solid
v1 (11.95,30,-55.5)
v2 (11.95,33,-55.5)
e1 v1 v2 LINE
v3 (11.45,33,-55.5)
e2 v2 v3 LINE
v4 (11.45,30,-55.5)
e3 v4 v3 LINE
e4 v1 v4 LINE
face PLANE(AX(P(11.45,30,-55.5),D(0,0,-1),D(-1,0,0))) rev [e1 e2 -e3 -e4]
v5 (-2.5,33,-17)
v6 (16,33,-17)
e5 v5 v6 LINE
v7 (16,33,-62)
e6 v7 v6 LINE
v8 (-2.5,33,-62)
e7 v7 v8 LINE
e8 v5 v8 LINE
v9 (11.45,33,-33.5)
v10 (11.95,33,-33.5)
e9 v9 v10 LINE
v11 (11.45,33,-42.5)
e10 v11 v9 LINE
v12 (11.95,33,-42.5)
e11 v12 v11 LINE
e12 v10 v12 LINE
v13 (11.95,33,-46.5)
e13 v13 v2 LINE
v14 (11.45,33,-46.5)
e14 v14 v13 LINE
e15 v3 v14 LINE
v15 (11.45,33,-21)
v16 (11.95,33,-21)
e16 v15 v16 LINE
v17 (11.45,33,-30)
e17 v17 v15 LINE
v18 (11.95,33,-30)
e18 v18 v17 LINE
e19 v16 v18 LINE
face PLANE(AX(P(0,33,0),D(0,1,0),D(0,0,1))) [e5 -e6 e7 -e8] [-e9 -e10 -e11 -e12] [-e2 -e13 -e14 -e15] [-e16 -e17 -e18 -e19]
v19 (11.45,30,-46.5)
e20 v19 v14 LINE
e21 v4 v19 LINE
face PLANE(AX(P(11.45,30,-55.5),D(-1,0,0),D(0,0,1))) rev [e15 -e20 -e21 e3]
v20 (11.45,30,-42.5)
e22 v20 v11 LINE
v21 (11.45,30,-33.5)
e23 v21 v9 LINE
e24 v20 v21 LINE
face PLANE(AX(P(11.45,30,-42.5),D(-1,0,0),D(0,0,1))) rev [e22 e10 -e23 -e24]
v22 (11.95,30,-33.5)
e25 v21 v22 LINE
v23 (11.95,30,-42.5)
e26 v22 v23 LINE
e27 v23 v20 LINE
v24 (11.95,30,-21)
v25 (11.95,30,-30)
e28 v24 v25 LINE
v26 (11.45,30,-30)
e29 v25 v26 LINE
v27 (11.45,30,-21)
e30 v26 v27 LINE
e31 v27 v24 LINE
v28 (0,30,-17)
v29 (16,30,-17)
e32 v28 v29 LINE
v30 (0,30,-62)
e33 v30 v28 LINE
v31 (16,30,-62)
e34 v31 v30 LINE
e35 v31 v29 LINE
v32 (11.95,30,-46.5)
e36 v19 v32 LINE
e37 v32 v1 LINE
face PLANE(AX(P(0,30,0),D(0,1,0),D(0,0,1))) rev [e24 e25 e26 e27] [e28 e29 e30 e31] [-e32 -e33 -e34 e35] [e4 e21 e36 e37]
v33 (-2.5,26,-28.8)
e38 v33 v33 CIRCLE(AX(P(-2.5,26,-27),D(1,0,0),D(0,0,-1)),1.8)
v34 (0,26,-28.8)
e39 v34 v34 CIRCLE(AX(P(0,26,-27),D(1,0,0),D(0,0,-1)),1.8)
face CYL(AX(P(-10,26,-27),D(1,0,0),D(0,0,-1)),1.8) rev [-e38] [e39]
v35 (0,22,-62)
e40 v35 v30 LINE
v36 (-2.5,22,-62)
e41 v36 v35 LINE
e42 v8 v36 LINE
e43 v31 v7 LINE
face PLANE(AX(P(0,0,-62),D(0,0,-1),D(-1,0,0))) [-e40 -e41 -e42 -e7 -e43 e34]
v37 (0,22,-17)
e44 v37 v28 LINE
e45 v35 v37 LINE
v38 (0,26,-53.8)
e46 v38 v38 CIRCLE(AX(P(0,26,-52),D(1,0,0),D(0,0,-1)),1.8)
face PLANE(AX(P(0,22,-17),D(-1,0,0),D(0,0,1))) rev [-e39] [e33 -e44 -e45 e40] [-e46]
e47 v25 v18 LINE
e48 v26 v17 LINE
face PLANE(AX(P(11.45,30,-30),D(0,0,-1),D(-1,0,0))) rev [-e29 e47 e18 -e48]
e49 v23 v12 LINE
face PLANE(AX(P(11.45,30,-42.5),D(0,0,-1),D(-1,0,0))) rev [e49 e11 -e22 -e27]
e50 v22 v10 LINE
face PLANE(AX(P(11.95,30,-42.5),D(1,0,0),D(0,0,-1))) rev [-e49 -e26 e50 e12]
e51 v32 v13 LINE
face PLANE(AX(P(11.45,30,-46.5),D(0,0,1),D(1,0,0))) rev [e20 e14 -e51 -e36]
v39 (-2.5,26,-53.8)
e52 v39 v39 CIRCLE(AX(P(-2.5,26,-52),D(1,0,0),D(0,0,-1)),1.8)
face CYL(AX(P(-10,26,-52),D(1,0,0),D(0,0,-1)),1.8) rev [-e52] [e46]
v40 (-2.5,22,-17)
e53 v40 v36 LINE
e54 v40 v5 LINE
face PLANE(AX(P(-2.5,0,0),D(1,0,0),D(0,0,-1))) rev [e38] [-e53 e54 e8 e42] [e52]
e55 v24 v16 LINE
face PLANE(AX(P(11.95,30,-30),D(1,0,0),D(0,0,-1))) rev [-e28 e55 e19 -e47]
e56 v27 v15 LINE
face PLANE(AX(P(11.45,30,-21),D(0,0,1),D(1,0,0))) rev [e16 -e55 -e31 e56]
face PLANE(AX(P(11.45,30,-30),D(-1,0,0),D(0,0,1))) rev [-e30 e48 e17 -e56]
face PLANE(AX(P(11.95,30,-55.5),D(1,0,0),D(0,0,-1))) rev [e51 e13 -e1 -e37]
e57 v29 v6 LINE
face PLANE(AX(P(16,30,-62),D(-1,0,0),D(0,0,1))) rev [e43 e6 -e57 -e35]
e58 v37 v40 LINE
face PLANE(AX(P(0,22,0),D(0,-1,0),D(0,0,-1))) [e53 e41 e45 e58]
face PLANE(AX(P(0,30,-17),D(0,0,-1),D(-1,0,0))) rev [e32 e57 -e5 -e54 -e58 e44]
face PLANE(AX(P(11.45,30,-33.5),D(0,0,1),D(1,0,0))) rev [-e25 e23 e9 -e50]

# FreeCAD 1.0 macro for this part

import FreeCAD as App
import Part
import Sketcher

doc = App.newDocument("Part")
body = doc.addObject("PartDesign::Body", "Body")

# Sketch on XZ plane
sketch1 = body.newObject("Sketcher::SketchObject", "Sketch")
sketch1.AttachmentSupport = (doc.getObject("XZ_Plane"), [""])
sketch1.MapMode = "FlatFace"
sketch1.addGeometry([
    Part.LineSegment(App.Vector(0, -2, 0), App.Vector(0, 0, 0)),
    Part.LineSegment(App.Vector(0, 0, 0), App.Vector(70.4, 0, 0)),
    Part.LineSegment(App.Vector(70.4, 0, 0), App.Vector(70.4, -2, 0)),
    Part.LineSegment(App.Vector(70.4, -2, 0), App.Vector(0, -2, 0)),
], False)
sketch1.addConstraint([
    Sketcher.Constraint("Coincident", 0, 2, 1, 1),
    Sketcher.Constraint("Coincident", 1, 2, 2, 1),
    Sketcher.Constraint("Coincident", 2, 2, 3, 1),
    Sketcher.Constraint("Coincident", 3, 2, 0, 1),
    Sketcher.Constraint("Vertical", 0),
    Sketcher.Constraint("Horizontal", 1),
    Sketcher.Constraint("Vertical", 2),
    Sketcher.Constraint("Horizontal", 3),
    Sketcher.Constraint("Coincident", 0, 2, -1, 1),
    Sketcher.Constraint("DistanceY", 0, 1, 0, 2, 2.0),
    Sketcher.Constraint("DistanceX", 1, 1, 1, 2, 70.4),
])
pad1 = body.newObject("PartDesign::Pad", "Pad")
pad1.Profile = sketch1
pad1.Length = 10
pad1.Reversed = True

# Sketch on XZ plane
sketch2 = body.newObject("Sketcher::SketchObject", "Sketch001")
sketch2.AttachmentSupport = (doc.getObject("XZ_Plane"), [""])
sketch2.MapMode = "FlatFace"
sketch2.AttachmentOffset = App.Placement(App.Vector(0, 0, -10), App.Rotation())
sketch2.addGeometry([
    Part.LineSegment(App.Vector(0, -57, 0), App.Vector(0, -2, 0)),  # 0
    Part.LineSegment(App.Vector(0, -2, 0), App.Vector(2, -2, 0)),  # 1
    Part.LineSegment(App.Vector(2, -2, 0), App.Vector(2, -57, 0)),  # 2
    Part.LineSegment(App.Vector(2, -57, 0), App.Vector(0, -57, 0)),  # 3
    Part.LineSegment(App.Vector(68.4, -57, 0), App.Vector(68.4, -2, 0)),  # 4
    Part.LineSegment(App.Vector(68.4, -2, 0), App.Vector(70.4, -2, 0)),  # 5
    Part.LineSegment(App.Vector(70.4, -2, 0), App.Vector(70.4, -57, 0)),  # 6
    Part.LineSegment(App.Vector(70.4, -57, 0), App.Vector(68.4, -57, 0)),  # 7
], False)
sketch2.addConstraint([
    Sketcher.Constraint("Coincident", 0, 2, 1, 1),
    Sketcher.Constraint("Coincident", 1, 2, 2, 1),
    Sketcher.Constraint("Coincident", 2, 2, 3, 1),
    Sketcher.Constraint("Coincident", 3, 2, 0, 1),
    Sketcher.Constraint("Coincident", 4, 2, 5, 1),
    Sketcher.Constraint("Coincident", 5, 2, 6, 1),
    Sketcher.Constraint("Coincident", 6, 2, 7, 1),
    Sketcher.Constraint("Coincident", 7, 2, 4, 1),
    Sketcher.Constraint("Vertical", 0),
    Sketcher.Constraint("Horizontal", 1),
    Sketcher.Constraint("Vertical", 2),
    Sketcher.Constraint("Horizontal", 3),
    Sketcher.Constraint("Vertical", 4),
    Sketcher.Constraint("Horizontal", 5),
    Sketcher.Constraint("Vertical", 6),
    Sketcher.Constraint("Horizontal", 7),
    Sketcher.Constraint("PointOnObject", 0, 2, -2),
    Sketcher.Constraint("Horizontal", 1, 2, 4, 2),
    Sketcher.Constraint("Horizontal", 3, 2, 6, 2),
    Sketcher.Constraint("Equal", 3, 5),
    Sketcher.Constraint("DistanceX", 1, 1, 1, 2, 2.0),
    Sketcher.Constraint("DistanceY", 0, 1, 0, 2, 55.0),
    Sketcher.Constraint("DistanceY", 0, 2, -1, 1, 2.0),
    Sketcher.Constraint("DistanceX", -1, 1, 4, 2, 68.4),
])
pad2 = body.newObject("PartDesign::Pad", "Pad001")
pad2.Profile = sketch2
pad2.Length = 10

# Sketch on XY plane
sketch3 = body.newObject("Sketcher::SketchObject", "Sketch002")
sketch3.AttachmentSupport = (doc.getObject("XY_Plane"), [""])
sketch3.MapMode = "FlatFace"
sketch3.addGeometry([
    Part.LineSegment(App.Vector(25.7, 13, 0), App.Vector(25.7, 10, 0)),
    Part.LineSegment(App.Vector(25.7, 10, 0), App.Vector(44.7, 10, 0)),
    Part.LineSegment(App.Vector(44.7, 10, 0), App.Vector(44.7, 13, 0)),
    Part.LineSegment(App.Vector(44.7, 13, 0), App.Vector(25.7, 13, 0)),
], False)
sketch3.addConstraint([
    Sketcher.Constraint("Coincident", 0, 2, 1, 1),
    Sketcher.Constraint("Coincident", 1, 2, 2, 1),
    Sketcher.Constraint("Coincident", 2, 2, 3, 1),
    Sketcher.Constraint("Coincident", 3, 2, 0, 1),
    Sketcher.Constraint("Vertical", 0),
    Sketcher.Constraint("Horizontal", 1),
    Sketcher.Constraint("Vertical", 2),
    Sketcher.Constraint("Horizontal", 3),
    Sketcher.Constraint("DistanceX", 1, 1, 1, 2, 19.0),
    Sketcher.Constraint("DistanceY", 0, 2, 0, 1, 3.0),
    Sketcher.Constraint("DistanceY", -1, 1, 0, 2, 10.0),
    Sketcher.Constraint("DistanceX", -1, 1, 0, 2, 25.7),
])
pad3 = body.newObject("PartDesign::Pad", "Pad002")
pad3.Profile = sketch3
pad3.Length = 2
pad3.Reversed = True

# Sketch on XY plane
sketch4 = body.newObject("Sketcher::SketchObject", "Sketch003")
sketch4.AttachmentSupport = (doc.getObject("XY_Plane"), [""])
sketch4.MapMode = "FlatFace"
sketch4.addGeometry([
    Part.LineSegment(App.Vector(28, 10, 0), App.Vector(28, 0, 0)),
    Part.LineSegment(App.Vector(28, 0, 0), App.Vector(43, 0, 0)),
    Part.LineSegment(App.Vector(43, 0, 0), App.Vector(43, 10, 0)),
    Part.LineSegment(App.Vector(43, 10, 0), App.Vector(28, 10, 0)),
], False)
sketch4.addConstraint([
    Sketcher.Constraint("Coincident", 0, 2, 1, 1),
    Sketcher.Constraint("Coincident", 1, 2, 2, 1),
    Sketcher.Constraint("Coincident", 2, 2, 3, 1),
    Sketcher.Constraint("Coincident", 3, 2, 0, 1),
    Sketcher.Constraint("Vertical", 0),
    Sketcher.Constraint("Horizontal", 1),
    Sketcher.Constraint("Vertical", 2),
    Sketcher.Constraint("Horizontal", 3),
    Sketcher.Constraint("PointOnObject", 0, 2, -1),
    Sketcher.Constraint("DistanceX", 1, 1, 1, 2, 15.0),
    Sketcher.Constraint("DistanceY", 0, 2, 0, 1, 10.0),
    Sketcher.Constraint("DistanceX", -1, 1, 0, 2, 27.7),
])
pocket1 = body.newObject("PartDesign::Pocket", "Pocket")
pocket1.Profile = sketch4
pocket1.Length = 2

# Sketch on YZ plane
sketch5 = body.newObject("Sketcher::SketchObject", "Sketch004")
sketch5.AttachmentSupport = (doc.getObject("YZ_Plane"), [""])
sketch5.MapMode = "FlatFace"
sketch5.AttachmentOffset = App.Placement(App.Vector(0, 0, 25.7), App.Rotation())
sketch5.addGeometry([
    Part.LineSegment(App.Vector(13, -2, 0), App.Vector(10, -2, 0)),
    Part.LineSegment(App.Vector(10, -2, 0), App.Vector(10, 0, 0)),
    Part.LineSegment(App.Vector(10, 0, 0), App.Vector(13, 0, 0)),
    Part.LineSegment(App.Vector(13, 0, 0), App.Vector(13, -2, 0)),
], False)
sketch5.addConstraint([
    Sketcher.Constraint("Coincident", 0, 2, 1, 1),
    Sketcher.Constraint("Coincident", 1, 2, 2, 1),
    Sketcher.Constraint("Coincident", 2, 2, 3, 1),
    Sketcher.Constraint("Coincident", 3, 2, 0, 1),
    Sketcher.Constraint("Horizontal", 0),
    Sketcher.Constraint("Vertical", 1),
    Sketcher.Constraint("Horizontal", 2),
    Sketcher.Constraint("Vertical", 3),
    Sketcher.Constraint("PointOnObject", 1, 2, -1),
    Sketcher.Constraint("DistanceX", 0, 2, 0, 1, 3.0),
    Sketcher.Constraint("DistanceY", 1, 1, 1, 2, 2.0),
    Sketcher.Constraint("DistanceX", -1, 1, 0, 2, 10.0),
])
pad4 = body.newObject("PartDesign::Pad", "Pad003")
pad4.Profile = sketch5
pad4.Length = 1
pad4.Reversed = True

# Sketch on YZ plane
sketch6 = body.newObject("Sketcher::SketchObject", "Sketch005")
sketch6.AttachmentSupport = (doc.getObject("YZ_Plane"), [""])
sketch6.MapMode = "FlatFace"
sketch6.AttachmentOffset = App.Placement(App.Vector(0, 0, 44.7), App.Rotation())
sketch6.addGeometry([
    Part.LineSegment(App.Vector(13, 0, 0), App.Vector(10, 0, 0)),
    Part.LineSegment(App.Vector(10, 0, 0), App.Vector(10, -2, 0)),
    Part.LineSegment(App.Vector(10, -2, 0), App.Vector(13, -2, 0)),
    Part.LineSegment(App.Vector(13, -2, 0), App.Vector(13, 0, 0)),
], False)
sketch6.addConstraint([
    Sketcher.Constraint("Coincident", 0, 2, 1, 1),
    Sketcher.Constraint("Coincident", 1, 2, 2, 1),
    Sketcher.Constraint("Coincident", 2, 2, 3, 1),
    Sketcher.Constraint("Coincident", 3, 2, 0, 1),
    Sketcher.Constraint("Horizontal", 0),
    Sketcher.Constraint("Vertical", 1),
    Sketcher.Constraint("Horizontal", 2),
    Sketcher.Constraint("Vertical", 3),
    Sketcher.Constraint("PointOnObject", 0, 2, -1),
    Sketcher.Constraint("DistanceX", 0, 2, 0, 1, 3.0),
    Sketcher.Constraint("DistanceY", 1, 2, 1, 1, 2.0),
    Sketcher.Constraint("DistanceX", -1, 1, 0, 2, 10.0),
])
pad5 = body.newObject("PartDesign::Pad", "Pad004")
pad5.Profile = sketch6
pad5.Length = 1

# Sketch on YZ plane
sketch7 = body.newObject("Sketcher::SketchObject", "Sketch006")
sketch7.AttachmentSupport = (doc.getObject("YZ_Plane"), [""])
sketch7.MapMode = "FlatFace"
sketch7.addGeometry([
    Part.LineSegment(App.Vector(2, -57, 0), App.Vector(0, -57, 0)),
    Part.LineSegment(App.Vector(0, -57, 0), App.Vector(0, 0, 0)),
    Part.LineSegment(App.Vector(0, 0, 0), App.Vector(2, 0, 0)),
    Part.LineSegment(App.Vector(2, 0, 0), App.Vector(2, -57, 0)),
], False)
sketch7.addConstraint([
    Sketcher.Constraint("Coincident", 0, 2, 1, 1),
    Sketcher.Constraint("Coincident", 1, 2, 2, 1),
    Sketcher.Constraint("Coincident", 2, 2, 3, 1),
    Sketcher.Constraint("Coincident", 3, 2, 0, 1),
    Sketcher.Constraint("Horizontal", 0),
    Sketcher.Constraint("Vertical", 1),
    Sketcher.Constraint("Horizontal", 2),
    Sketcher.Constraint("Vertical", 3),
    Sketcher.Constraint("Coincident", 1, 2, -1, 1),
    Sketcher.Constraint("DistanceX", 0, 2, 0, 1, 2.0),
    Sketcher.Constraint("DistanceY", 1, 1, 1, 2, 57.0),
])
pad6 = body.newObject("PartDesign::Pad", "Pad005")
pad6.Profile = sketch7
pad6.Length = 6.6
pad6.Reversed = True

# Sketch on YZ plane
sketch8 = body.newObject("Sketcher::SketchObject", "Sketch007")
sketch8.AttachmentSupport = (doc.getObject("YZ_Plane"), [""])
sketch8.MapMode = "FlatFace"
sketch8.AttachmentOffset = App.Placement(App.Vector(0, 0, 70.4), App.Rotation())
sketch8.addGeometry([
    Part.LineSegment(App.Vector(2, 0, 0), App.Vector(0, 0, 0)),
    Part.LineSegment(App.Vector(0, 0, 0), App.Vector(0, -57, 0)),
    Part.LineSegment(App.Vector(0, -57, 0), App.Vector(2, -57, 0)),
    Part.LineSegment(App.Vector(2, -57, 0), App.Vector(2, 0, 0)),
], False)
sketch8.addConstraint([
    Sketcher.Constraint("Coincident", 0, 2, 1, 1),
    Sketcher.Constraint("Coincident", 1, 2, 2, 1),
    Sketcher.Constraint("Coincident", 2, 2, 3, 1),
    Sketcher.Constraint("Coincident", 3, 2, 0, 1),
    Sketcher.Constraint("Horizontal", 0),
    Sketcher.Constraint("Vertical", 1),
    Sketcher.Constraint("Horizontal", 2),
    Sketcher.Constraint("Vertical", 3),
    Sketcher.Constraint("Coincident", 0, 2, -1, 1),
    Sketcher.Constraint("DistanceX", 0, 2, 0, 1, 2.0),
    Sketcher.Constraint("DistanceY", 1, 2, 1, 1, 57.0),
])
pad7 = body.newObject("PartDesign::Pad", "Pad006")
pad7.Profile = sketch8
pad7.Length = 6.6

# Sketch on XY plane
sketch9 = body.newObject("Sketcher::SketchObject", "Sketch008")
sketch9.AttachmentSupport = (doc.getObject("XY_Plane"), [""])
sketch9.MapMode = "FlatFace"
sketch9.AttachmentOffset = App.Placement(App.Vector(0, 0, -57), App.Rotation())
sketch9.addGeometry([
    Part.LineSegment(App.Vector(2, 10, 0), App.Vector(2, 0, 0)),  # 0
    Part.LineSegment(App.Vector(2, 0, 0), App.Vector(-6.6, 0, 0)),  # 1
    Part.LineSegment(App.Vector(-6.6, 0, 0), App.Vector(-6.6, 2, 0)),  # 2
    Part.LineSegment(App.Vector(-6.6, 2, 0), App.Vector(0, 2, 0)),  # 3
    Part.LineSegment(App.Vector(0, 2, 0), App.Vector(0, 10, 0)),  # 4
    Part.LineSegment(App.Vector(0, 10, 0), App.Vector(2, 10, 0)),  # 5
    Part.LineSegment(App.Vector(77, 0, 0), App.Vector(68.4, 0, 0)),  # 6
    Part.LineSegment(App.Vector(68.4, 0, 0), App.Vector(68.4, 10, 0)),  # 7
    Part.LineSegment(App.Vector(68.4, 10, 0), App.Vector(70.4, 10, 0)),  # 8
    Part.LineSegment(App.Vector(70.4, 10, 0), App.Vector(70.4, 2, 0)),  # 9
    Part.LineSegment(App.Vector(70.4, 2, 0), App.Vector(77, 2, 0)),  # 10
    Part.LineSegment(App.Vector(77, 2, 0), App.Vector(77, 0, 0)),  # 11
], False)
sketch9.addConstraint([
    Sketcher.Constraint("Coincident", 0, 2, 1, 1),
    Sketcher.Constraint("Coincident", 1, 2, 2, 1),
    Sketcher.Constraint("Coincident", 2, 2, 3, 1),
    Sketcher.Constraint("Coincident", 3, 2, 4, 1),
    Sketcher.Constraint("Coincident", 4, 2, 5, 1),
    Sketcher.Constraint("Coincident", 5, 2, 0, 1),
    Sketcher.Constraint("Coincident", 6, 2, 7, 1),
    Sketcher.Constraint("Coincident", 7, 2, 8, 1),
    Sketcher.Constraint("Coincident", 8, 2, 9, 1),
    Sketcher.Constraint("Coincident", 9, 2, 10, 1),
    Sketcher.Constraint("Coincident", 10, 2, 11, 1),
    Sketcher.Constraint("Coincident", 11, 2, 6, 1),
    Sketcher.Constraint("Vertical", 0),
    Sketcher.Constraint("Horizontal", 1),
    Sketcher.Constraint("Vertical", 2),
    Sketcher.Constraint("Horizontal", 3),
    Sketcher.Constraint("Vertical", 4),
    Sketcher.Constraint("Horizontal", 5),
    Sketcher.Constraint("Horizontal", 6),
    Sketcher.Constraint("Vertical", 7),
    Sketcher.Constraint("Horizontal", 8),
    Sketcher.Constraint("Vertical", 9),
    Sketcher.Constraint("Horizontal", 10),
    Sketcher.Constraint("Vertical", 11),
    Sketcher.Constraint("PointOnObject", 0, 2, -1),
    Sketcher.Constraint("PointOnObject", 3, 2, -2),
    Sketcher.Constraint("PointOnObject", 6, 2, -1),
    Sketcher.Constraint("Horizontal", 5, 2, 7, 2),
    Sketcher.Constraint("Horizontal", 3, 2, 9, 2),
    Sketcher.Constraint("Equal", 1, 6),
    Sketcher.Constraint("Equal", 5, 8),
    Sketcher.Constraint("Equal", 8, 2),
    Sketcher.Constraint("DistanceX", 5, 1, 5, 2, 2.0),
    Sketcher.Constraint("DistanceY", 0, 2, 0, 1, 10.0),
    Sketcher.Constraint("DistanceX", 1, 2, 1, 1, 8.6),
    Sketcher.Constraint("DistanceX", -1, 1, 10, 2, 77.0),
])
pad8 = body.newObject("PartDesign::Pad", "Pad007")
pad8.Profile = sketch9
pad8.Length = 5
pad8.Reversed = True

# Sketch on XZ plane
sketch10 = body.newObject("Sketcher::SketchObject", "Sketch009")
sketch10.AttachmentSupport = (doc.getObject("XZ_Plane"), [""])
sketch10.MapMode = "FlatFace"
sketch10.AttachmentOffset = App.Placement(App.Vector(0, 0, -10), App.Rotation())
sketch10.addGeometry([
    Part.LineSegment(App.Vector(0, -62, 0), App.Vector(0, -17, 0)),  # 0
    Part.LineSegment(App.Vector(0, -17, 0), App.Vector(2, -17, 0)),  # 1
    Part.LineSegment(App.Vector(2, -17, 0), App.Vector(2, -62, 0)),  # 2
    Part.LineSegment(App.Vector(2, -62, 0), App.Vector(0, -62, 0)),  # 3
    Part.LineSegment(App.Vector(68.4, -27, 0), App.Vector(70.4, -27, 0)),  # 4
    Part.LineSegment(App.Vector(70.4, -27, 0), App.Vector(70.4, -62, 0)),  # 5
    Part.LineSegment(App.Vector(70.4, -62, 0), App.Vector(68.4, -62, 0)),  # 6
    Part.LineSegment(App.Vector(68.4, -62, 0), App.Vector(68.4, -27, 0)),  # 7
], False)
sketch10.addConstraint([
    Sketcher.Constraint("Coincident", 0, 2, 1, 1),
    Sketcher.Constraint("Coincident", 1, 2, 2, 1),
    Sketcher.Constraint("Coincident", 2, 2, 3, 1),
    Sketcher.Constraint("Coincident", 3, 2, 0, 1),
    Sketcher.Constraint("Coincident", 4, 2, 5, 1),
    Sketcher.Constraint("Coincident", 5, 2, 6, 1),
    Sketcher.Constraint("Coincident", 6, 2, 7, 1),
    Sketcher.Constraint("Coincident", 7, 2, 4, 1),
    Sketcher.Constraint("Vertical", 0),
    Sketcher.Constraint("Horizontal", 1),
    Sketcher.Constraint("Vertical", 2),
    Sketcher.Constraint("Horizontal", 3),
    Sketcher.Constraint("Horizontal", 4),
    Sketcher.Constraint("Vertical", 5),
    Sketcher.Constraint("Horizontal", 6),
    Sketcher.Constraint("Vertical", 7),
    Sketcher.Constraint("PointOnObject", 0, 2, -2),
    Sketcher.Constraint("Horizontal", 3, 2, 5, 2),
    Sketcher.Constraint("Equal", 3, 4),
    Sketcher.Constraint("DistanceX", 1, 1, 1, 2, 2.0),
    Sketcher.Constraint("DistanceY", 0, 1, 0, 2, 45.0),
    Sketcher.Constraint("DistanceY", 5, 2, 5, 1, 35.0),
    Sketcher.Constraint("DistanceY", 0, 2, -1, 1, 17.0),
    Sketcher.Constraint("DistanceX", -1, 1, 4, 2, 70.4),
])
pad9 = body.newObject("PartDesign::Pad", "Pad008")
pad9.Profile = sketch10
pad9.Length = 20
pad9.Reversed = True

# Sketch on XZ plane
sketch11 = body.newObject("Sketcher::SketchObject", "Sketch010")
sketch11.AttachmentSupport = (doc.getObject("XZ_Plane"), [""])
sketch11.MapMode = "FlatFace"
sketch11.AttachmentOffset = App.Placement(App.Vector(0, 0, -30), App.Rotation())
sketch11.addGeometry([
    Part.LineSegment(App.Vector(0, -17, 0), App.Vector(35, -17, 0)),  # 0
    Part.LineSegment(App.Vector(35, -17, 0), App.Vector(35, -27, 0)),  # 1
    Part.LineSegment(App.Vector(35, -27, 0), App.Vector(70, -27, 0)),  # 2
    Part.LineSegment(App.Vector(70, -27, 0), App.Vector(70, -62, 0)),  # 3
    Part.LineSegment(App.Vector(70, -62, 0), App.Vector(0, -62, 0)),  # 4
    Part.LineSegment(App.Vector(0, -62, 0), App.Vector(0, -17, 0)),  # 5
], False)
sketch11.addConstraint([
    Sketcher.Constraint("Coincident", 0, 2, 1, 1),
    Sketcher.Constraint("Coincident", 1, 2, 2, 1),
    Sketcher.Constraint("Coincident", 2, 2, 3, 1),
    Sketcher.Constraint("Coincident", 3, 2, 4, 1),
    Sketcher.Constraint("Coincident", 4, 2, 5, 1),
    Sketcher.Constraint("Coincident", 5, 2, 0, 1),
    Sketcher.Constraint("Horizontal", 0),
    Sketcher.Constraint("Vertical", 1),
    Sketcher.Constraint("Horizontal", 2),
    Sketcher.Constraint("Vertical", 3),
    Sketcher.Constraint("Horizontal", 4),
    Sketcher.Constraint("Vertical", 5),
    Sketcher.Constraint("PointOnObject", 4, 2, -2),
    Sketcher.Constraint("Equal", 0, 2),
    Sketcher.Constraint("DistanceY", 1, 2, 1, 1, 10.0),
    Sketcher.Constraint("DistanceY", 3, 2, 3, 1, 35.0),
    Sketcher.Constraint("DistanceX", 0, 1, 0, 2, 35.2),
    Sketcher.Constraint("DistanceY", 0, 2, -1, 1, 17.0),
])
pad10 = body.newObject("PartDesign::Pad", "Pad009")
pad10.Profile = sketch11
pad10.Length = 3
pad10.Reversed = True

# Sketch on XZ plane
sketch12 = body.newObject("Sketcher::SketchObject", "Sketch011")
sketch12.AttachmentSupport = (doc.getObject("XZ_Plane"), [""])
sketch12.MapMode = "FlatFace"
sketch12.AttachmentOffset = App.Placement(App.Vector(0, 0, -33), App.Rotation())
sketch12.addGeometry([
    Part.LineSegment(App.Vector(11.4, -55.5, 0), App.Vector(11.4, -46.5, 0)),  # 0
    Part.LineSegment(App.Vector(11.4, -46.5, 0), App.Vector(11.9, -46.5, 0)),  # 1
    Part.LineSegment(App.Vector(11.9, -46.5, 0), App.Vector(11.9, -55.5, 0)),  # 2
    Part.LineSegment(App.Vector(11.9, -55.5, 0), App.Vector(11.4, -55.5, 0)),  # 3
    Part.LineSegment(App.Vector(11.4, -42.5, 0), App.Vector(11.4, -33.5, 0)),  # 4
    Part.LineSegment(App.Vector(11.4, -33.5, 0), App.Vector(11.9, -33.5, 0)),  # 5
    Part.LineSegment(App.Vector(11.9, -33.5, 0), App.Vector(11.9, -42.5, 0)),  # 6
    Part.LineSegment(App.Vector(11.9, -42.5, 0), App.Vector(11.4, -42.5, 0)),  # 7
    Part.LineSegment(App.Vector(11.4, -30, 0), App.Vector(11.4, -21, 0)),  # 8
    Part.LineSegment(App.Vector(11.4, -21, 0), App.Vector(11.9, -21, 0)),  # 9
    Part.LineSegment(App.Vector(11.9, -21, 0), App.Vector(11.9, -30, 0)),  # 10
    Part.LineSegment(App.Vector(11.9, -30, 0), App.Vector(11.4, -30, 0)),  # 11
    Part.LineSegment(App.Vector(58, -55.5, 0), App.Vector(58, -46.5, 0)),  # 12
    Part.LineSegment(App.Vector(58, -46.5, 0), App.Vector(58.5, -46.5, 0)),  # 13
    Part.LineSegment(App.Vector(58.5, -46.5, 0), App.Vector(58.5, -55.5, 0)),  # 14
    Part.LineSegment(App.Vector(58.5, -55.5, 0), App.Vector(58, -55.5, 0)),  # 15
    Part.LineSegment(App.Vector(58, -42.5, 0), App.Vector(58, -33.5, 0)),  # 16
    Part.LineSegment(App.Vector(58, -33.5, 0), App.Vector(58.5, -33.5, 0)),  # 17
    Part.LineSegment(App.Vector(58.5, -33.5, 0), App.Vector(58.5, -42.5, 0)),  # 18
    Part.LineSegment(App.Vector(58.5, -42.5, 0), App.Vector(58, -42.5, 0)),  # 19
], False)
sketch12.addConstraint([
    Sketcher.Constraint("Coincident", 0, 2, 1, 1),
    Sketcher.Constraint("Coincident", 1, 2, 2, 1),
    Sketcher.Constraint("Coincident", 2, 2, 3, 1),
    Sketcher.Constraint("Coincident", 3, 2, 0, 1),
    Sketcher.Constraint("Coincident", 4, 2, 5, 1),
    Sketcher.Constraint("Coincident", 5, 2, 6, 1),
    Sketcher.Constraint("Coincident", 6, 2, 7, 1),
    Sketcher.Constraint("Coincident", 7, 2, 4, 1),
    Sketcher.Constraint("Coincident", 8, 2, 9, 1),
    Sketcher.Constraint("Coincident", 9, 2, 10, 1),
    Sketcher.Constraint("Coincident", 10, 2, 11, 1),
    Sketcher.Constraint("Coincident", 11, 2, 8, 1),
    Sketcher.Constraint("Coincident", 12, 2, 13, 1),
    Sketcher.Constraint("Coincident", 13, 2, 14, 1),
    Sketcher.Constraint("Coincident", 14, 2, 15, 1),
    Sketcher.Constraint("Coincident", 15, 2, 12, 1),
    Sketcher.Constraint("Coincident", 16, 2, 17, 1),
    Sketcher.Constraint("Coincident", 17, 2, 18, 1),
    Sketcher.Constraint("Coincident", 18, 2, 19, 1),
    Sketcher.Constraint("Coincident", 19, 2, 16, 1),
    Sketcher.Constraint("Vertical", 0),
    Sketcher.Constraint("Horizontal", 1),
    Sketcher.Constraint("Vertical", 2),
    Sketcher.Constraint("Horizontal", 3),
    Sketcher.Constraint("Vertical", 4),
    Sketcher.Constraint("Horizontal", 5),
    Sketcher.Constraint("Vertical", 6),
    Sketcher.Constraint("Horizontal", 7),
    Sketcher.Constraint("Vertical", 8),
    Sketcher.Constraint("Horizontal", 9),
    Sketcher.Constraint("Vertical", 10),
    Sketcher.Constraint("Horizontal", 11),
    Sketcher.Constraint("Vertical", 12),
    Sketcher.Constraint("Horizontal", 13),
    Sketcher.Constraint("Vertical", 14),
    Sketcher.Constraint("Horizontal", 15),
    Sketcher.Constraint("Vertical", 16),
    Sketcher.Constraint("Horizontal", 17),
    Sketcher.Constraint("Vertical", 18),
    Sketcher.Constraint("Horizontal", 19),
    Sketcher.Constraint("Horizontal", 1, 2, 12, 2),
    Sketcher.Constraint("Horizontal", 3, 2, 14, 2),
    Sketcher.Constraint("Horizontal", 5, 2, 16, 2),
    Sketcher.Constraint("Horizontal", 7, 2, 18, 2),
    Sketcher.Constraint("Vertical", 3, 2, 4, 2),
    Sketcher.Constraint("Vertical", 2, 2, 5, 2),
    Sketcher.Constraint("Vertical", 7, 2, 8, 2),
    Sketcher.Constraint("Vertical", 6, 2, 9, 2),
    Sketcher.Constraint("Vertical", 15, 2, 16, 2),
    Sketcher.Constraint("Vertical", 14, 2, 17, 2),
    Sketcher.Constraint("Equal", 11, 13),
    Sketcher.Constraint("Equal", 2, 4),
    Sketcher.Constraint("Equal", 6, 8),
    Sketcher.Constraint("DistanceY", 0, 1, 0, 2, 9.0),
    Sketcher.Constraint("DistanceX", 1, 1, 1, 2, 0.5),
    Sketcher.Constraint("DistanceY", 8, 2, -1, 1, 21.0),
    Sketcher.Constraint("DistanceY", 0, 2, 4, 2, 13.0),
    Sketcher.Constraint("DistanceX", 1, 2, 12, 2, 46.0),
    Sketcher.Constraint("DistanceY", 0, 2, -1, 1, 46.5),
    Sketcher.Constraint("DistanceX", -1, 1, 0, 2, 11.45),
])
pocket2 = body.newObject("PartDesign::Pocket", "Pocket001")
pocket2.Profile = sketch12
pocket2.Length = 3
pocket2.Reversed = True

# Sketch on XZ plane
sketch13 = body.newObject("Sketcher::SketchObject", "Sketch012")
sketch13.AttachmentSupport = (doc.getObject("XZ_Plane"), [""])
sketch13.MapMode = "FlatFace"
sketch13.AttachmentOffset = App.Placement(App.Vector(0, 0, -33), App.Rotation())
sketch13.addGeometry([
    Part.LineSegment(App.Vector(16, -62, 0), App.Vector(16, -17, 0)),
    Part.LineSegment(App.Vector(16, -17, 0), App.Vector(54, -17, 0)),
    Part.LineSegment(App.Vector(54, -17, 0), App.Vector(54, -62, 0)),
    Part.LineSegment(App.Vector(54, -62, 0), App.Vector(16, -62, 0)),
], False)
sketch13.addConstraint([
    Sketcher.Constraint("Coincident", 0, 2, 1, 1),
    Sketcher.Constraint("Coincident", 1, 2, 2, 1),
    Sketcher.Constraint("Coincident", 2, 2, 3, 1),
    Sketcher.Constraint("Coincident", 3, 2, 0, 1),
    Sketcher.Constraint("Vertical", 0),
    Sketcher.Constraint("Horizontal", 1),
    Sketcher.Constraint("Vertical", 2),
    Sketcher.Constraint("Horizontal", 3),
    Sketcher.Constraint("DistanceY", 0, 1, 0, 2, 45.0),
    Sketcher.Constraint("DistanceX", 1, 1, 1, 2, 38.4),
    Sketcher.Constraint("DistanceX", -1, 1, 0, 2, 16.0),
    Sketcher.Constraint("DistanceY", 0, 2, -1, 1, 17.0),
])
pocket3 = body.newObject("PartDesign::Pocket", "Pocket002")
pocket3.Profile = sketch13
pocket3.Length = 3
pocket3.Reversed = True

# Sketch on XY plane
sketch14 = body.newObject("Sketcher::SketchObject", "Sketch013")
sketch14.AttachmentSupport = (doc.getObject("XY_Plane"), [""])
sketch14.MapMode = "FlatFace"
sketch14.addGeometry([
    Part.LineSegment(App.Vector(-6.6, 0, 0), App.Vector(27.7, 0, 0)),  # 0
    Part.LineSegment(App.Vector(27.7, 0, 0), App.Vector(27.7, 10, 0)),  # 1
    Part.LineSegment(App.Vector(27.7, 10, 0), App.Vector(42.7, 10, 0)),  # 2
    Part.LineSegment(App.Vector(42.7, 10, 0), App.Vector(42.7, 0, 0)),  # 3
    Part.LineSegment(App.Vector(42.7, 0, 0), App.Vector(77, 0, 0)),  # 4
    Part.LineSegment(App.Vector(77, 0, 0), App.Vector(77, 2, 0)),  # 5
    Part.LineSegment(App.Vector(77, 2, 0), App.Vector(70.4, 2, 0)),  # 6
    Part.LineSegment(App.Vector(70.4, 2, 0), App.Vector(70.4, 10, 0)),  # 7
    Part.LineSegment(App.Vector(70.4, 10, 0), App.Vector(45.7, 10, 0)),  # 8
    Part.LineSegment(App.Vector(45.7, 10, 0), App.Vector(45.7, 13, 0)),  # 9
    Part.LineSegment(App.Vector(45.7, 13, 0), App.Vector(24.7, 13, 0)),  # 10
    Part.LineSegment(App.Vector(24.7, 13, 0), App.Vector(24.7, 10, 0)),  # 11
    Part.LineSegment(App.Vector(24.7, 10, 0), App.Vector(0, 10, 0)),  # 12
    Part.LineSegment(App.Vector(0, 10, 0), App.Vector(0, 2, 0)),  # 13
    Part.LineSegment(App.Vector(0, 2, 0), App.Vector(-6.6, 2, 0)),  # 14
    Part.LineSegment(App.Vector(-6.6, 2, 0), App.Vector(-6.6, 0, 0)),  # 15
], False)
sketch14.addConstraint([
    Sketcher.Constraint("Coincident", 0, 2, 1, 1),
    Sketcher.Constraint("Coincident", 1, 2, 2, 1),
    Sketcher.Constraint("Coincident", 2, 2, 3, 1),
    Sketcher.Constraint("Coincident", 3, 2, 4, 1),
    Sketcher.Constraint("Coincident", 4, 2, 5, 1),
    Sketcher.Constraint("Coincident", 5, 2, 6, 1),
    Sketcher.Constraint("Coincident", 6, 2, 7, 1),
    Sketcher.Constraint("Coincident", 7, 2, 8, 1),
    Sketcher.Constraint("Coincident", 8, 2, 9, 1),
    Sketcher.Constraint("Coincident", 9, 2, 10, 1),
    Sketcher.Constraint("Coincident", 10, 2, 11, 1),
    Sketcher.Constraint("Coincident", 11, 2, 12, 1),
    Sketcher.Constraint("Coincident", 12, 2, 13, 1),
    Sketcher.Constraint("Coincident", 13, 2, 14, 1),
    Sketcher.Constraint("Coincident", 14, 2, 15, 1),
    Sketcher.Constraint("Coincident", 15, 2, 0, 1),
    Sketcher.Constraint("Horizontal", 0),
    Sketcher.Constraint("Vertical", 1),
    Sketcher.Constraint("Horizontal", 2),
    Sketcher.Constraint("Vertical", 3),
    Sketcher.Constraint("Horizontal", 4),
    Sketcher.Constraint("Vertical", 5),
    Sketcher.Constraint("Horizontal", 6),
    Sketcher.Constraint("Vertical", 7),
    Sketcher.Constraint("Horizontal", 8),
    Sketcher.Constraint("Vertical", 9),
    Sketcher.Constraint("Horizontal", 10),
    Sketcher.Constraint("Vertical", 11),
    Sketcher.Constraint("Horizontal", 12),
    Sketcher.Constraint("Vertical", 13),
    Sketcher.Constraint("Horizontal", 14),
    Sketcher.Constraint("Vertical", 15),
    Sketcher.Constraint("PointOnObject", 0, 2, -1),
    Sketcher.Constraint("PointOnObject", 3, 2, -1),
    Sketcher.Constraint("PointOnObject", 12, 2, -2),
    Sketcher.Constraint("Horizontal", 2, 2, 7, 2),
    Sketcher.Constraint("Horizontal", 8, 2, 11, 2),
    Sketcher.Constraint("Horizontal", 6, 2, 13, 2),
    Sketcher.Constraint("Equal", 0, 4),
    Sketcher.Constraint("Equal", 8, 12),
    Sketcher.Constraint("Equal", 6, 14),
    Sketcher.Constraint("DistanceX", 2, 1, 2, 2, 15.0),
    Sketcher.Constraint("DistanceX", 10, 2, 10, 1, 21.0),
    Sketcher.Constraint("DistanceY", 1, 1, 1, 2, 10.0),
    Sketcher.Constraint("DistanceY", 5, 1, 5, 2, 2.0),
    Sketcher.Constraint("DistanceY", 9, 1, 9, 2, 3.0),
    Sketcher.Constraint("DistanceX", 0, 1, 0, 2, 34.3),
    Sketcher.Constraint("DistanceX", 6, 2, 6, 1, 6.6),
])
pad11 = body.newObject("PartDesign::Pad", "Pad010")
pad11.Profile = sketch14
pad11.Length = 0.5

# Sketch on XZ plane
sketch15 = body.newObject("Sketcher::SketchObject", "Sketch014")
sketch15.AttachmentSupport = (doc.getObject("XZ_Plane"), [""])
sketch15.MapMode = "FlatFace"
sketch15.AttachmentOffset = App.Placement(App.Vector(0, 0, -2), App.Rotation())
sketch15.addGeometry([
    Part.Circle(App.Vector(-3.3, -55, 0), App.Vector(0, 0, 1), 1.8),  # 0
    Part.Circle(App.Vector(73.7, -55, 0), App.Vector(0, 0, 1), 1.8),  # 1
    Part.Circle(App.Vector(-3.3, -6.5, 0), App.Vector(0, 0, 1), 1.8),  # 2
    Part.Circle(App.Vector(73.7, -6.5, 0), App.Vector(0, 0, 1), 1.8),  # 3
    Part.Circle(App.Vector(-3.3, -30.8, 0), App.Vector(0, 0, 1), 1.8),  # 4
    Part.Circle(App.Vector(73.7, -30.8, 0), App.Vector(0, 0, 1), 1.8),  # 5
    Part.LineSegment(App.Vector(-4.8, -17, 0), App.Vector(-4.8, -12, 0)),  # 6
    Part.LineSegment(App.Vector(-4.8, -12, 0), App.Vector(-1.8, -12, 0)),  # 7
    Part.LineSegment(App.Vector(-1.8, -12, 0), App.Vector(-1.8, -17, 0)),  # 8
    Part.LineSegment(App.Vector(-1.8, -17, 0), App.Vector(-4.8, -17, 0)),  # 9
    Part.LineSegment(App.Vector(72.2, -17, 0), App.Vector(72.2, -12, 0)),  # 10
    Part.LineSegment(App.Vector(72.2, -12, 0), App.Vector(75.2, -12, 0)),  # 11
    Part.LineSegment(App.Vector(75.2, -12, 0), App.Vector(75.2, -17, 0)),  # 12
    Part.LineSegment(App.Vector(75.2, -17, 0), App.Vector(72.2, -17, 0)),  # 13
], False)
sketch15.addConstraint([
    Sketcher.Constraint("Coincident", 6, 2, 7, 1),
    Sketcher.Constraint("Coincident", 7, 2, 8, 1),
    Sketcher.Constraint("Coincident", 8, 2, 9, 1),
    Sketcher.Constraint("Coincident", 9, 2, 6, 1),
    Sketcher.Constraint("Coincident", 10, 2, 11, 1),
    Sketcher.Constraint("Coincident", 11, 2, 12, 1),
    Sketcher.Constraint("Coincident", 12, 2, 13, 1),
    Sketcher.Constraint("Coincident", 13, 2, 10, 1),
    Sketcher.Constraint("Vertical", 6),
    Sketcher.Constraint("Horizontal", 7),
    Sketcher.Constraint("Vertical", 8),
    Sketcher.Constraint("Horizontal", 9),
    Sketcher.Constraint("Vertical", 10),
    Sketcher.Constraint("Horizontal", 11),
    Sketcher.Constraint("Vertical", 12),
    Sketcher.Constraint("Horizontal", 13),
    Sketcher.Constraint("Equal", 0, 1),
    Sketcher.Constraint("Equal", 1, 2),
    Sketcher.Constraint("Equal", 2, 3),
    Sketcher.Constraint("Equal", 3, 4),
    Sketcher.Constraint("Equal", 4, 5),
    Sketcher.Constraint("Horizontal", 0, 3, 1, 3),
    Sketcher.Constraint("Horizontal", 2, 3, 3, 3),
    Sketcher.Constraint("Horizontal", 4, 3, 5, 3),
    Sketcher.Constraint("Horizontal", 7, 2, 10, 2),
    Sketcher.Constraint("Horizontal", 9, 2, 12, 2),
    Sketcher.Constraint("Vertical", 0, 3, 2, 3),
    Sketcher.Constraint("Vertical", 1, 3, 3, 3),
    Sketcher.Constraint("Vertical", 2, 3, 4, 3),
    Sketcher.Constraint("Vertical", 3, 3, 5, 3),
    Sketcher.Constraint("Equal", 9, 11),
    Sketcher.Constraint("Diameter", 0, 3.6),
    Sketcher.Constraint("DistanceX", 7, 1, 7, 2, 3.0),
    Sketcher.Constraint("DistanceY", 6, 1, 6, 2, 5.0),
    Sketcher.Constraint("DistanceY", 0, 3, -1, 1, 55.0),
    Sketcher.Constraint("DistanceY", 6, 2, -1, 1, 12.0),
    Sketcher.Constraint("DistanceX", 0, 3, 1, 3, 77.0),
    Sketcher.Constraint("DistanceX", 7, 2, 10, 2, 74.0),
    Sketcher.Constraint("DistanceX", 0, 3, -1, 1, 3.3),
    Sketcher.Constraint("DistanceY", 2, 3, -1, 1, 6.5),
    Sketcher.Constraint("DistanceX", 6, 2, -1, 1, 4.8),
    Sketcher.Constraint("DistanceY", 4, 3, -1, 1, 30.75),
])
pocket4 = body.newObject("PartDesign::Pocket", "Pocket003")
pocket4.Profile = sketch15
pocket4.Length = 3
pocket4.Reversed = True

# Sketch on YZ plane
sketch16 = body.newObject("Sketcher::SketchObject", "Sketch015")
sketch16.AttachmentSupport = (doc.getObject("YZ_Plane"), [""])
sketch16.MapMode = "FlatFace"
sketch16.AttachmentOffset = App.Placement(App.Vector(0, 0, 70.4), App.Rotation())
sketch16.addGeometry([
    Part.LineSegment(App.Vector(33, 33, 0), App.Vector(-18, 33, 0)),
    Part.LineSegment(App.Vector(-18, 33, 0), App.Vector(-18, -62, 0)),
    Part.LineSegment(App.Vector(-18, -62, 0), App.Vector(33, -62, 0)),
    Part.LineSegment(App.Vector(33, -62, 0), App.Vector(33, 33, 0)),
], False)
sketch16.addConstraint([
    Sketcher.Constraint("Coincident", 0, 2, 1, 1),
    Sketcher.Constraint("Coincident", 1, 2, 2, 1),
    Sketcher.Constraint("Coincident", 2, 2, 3, 1),
    Sketcher.Constraint("Coincident", 3, 2, 0, 1),
    Sketcher.Constraint("Horizontal", 0),
    Sketcher.Constraint("Vertical", 1),
    Sketcher.Constraint("Horizontal", 2),
    Sketcher.Constraint("Vertical", 3),
    Sketcher.Constraint("DistanceY", 1, 2, -1, 1, 62.0),
    Sketcher.Constraint("DistanceX", -1, 1, 2, 2, 33.0),
    Sketcher.Constraint("DistanceY", 1, 2, 1, 1, 94.558021),
    Sketcher.Constraint("DistanceX", 0, 2, 0, 1, 51.225035),
])
pocket5 = body.newObject("PartDesign::Pocket", "Pocket004")
pocket5.Profile = sketch16
pocket5.Type = "TwoLengths"
pocket5.Length = 32
pocket5.Length2 = 49
pocket5.Reversed = True

# Sketch on YZ plane
sketch17 = body.newObject("Sketcher::SketchObject", "Sketch016")
sketch17.AttachmentSupport = (doc.getObject("YZ_Plane"), [""])
sketch17.MapMode = "FlatFace"
sketch17.AttachmentOffset = App.Placement(App.Vector(0, 0, 2), App.Rotation())
sketch17.addGeometry([
    Part.LineSegment(App.Vector(30, 30, 0), App.Vector(-10, 30, 0)),
    Part.LineSegment(App.Vector(-10, 30, 0), App.Vector(-10, -62, 0)),
    Part.LineSegment(App.Vector(-10, -62, 0), App.Vector(30, -62, 0)),
    Part.LineSegment(App.Vector(30, -62, 0), App.Vector(30, 30, 0)),
], False)
sketch17.addConstraint([
    Sketcher.Constraint("Coincident", 0, 2, 1, 1),
    Sketcher.Constraint("Coincident", 1, 2, 2, 1),
    Sketcher.Constraint("Coincident", 2, 2, 3, 1),
    Sketcher.Constraint("Coincident", 3, 2, 0, 1),
    Sketcher.Constraint("Horizontal", 0),
    Sketcher.Constraint("Vertical", 1),
    Sketcher.Constraint("Horizontal", 2),
    Sketcher.Constraint("Vertical", 3),
    Sketcher.Constraint("DistanceY", 1, 2, -1, 1, 62.0),
    Sketcher.Constraint("DistanceX", -1, 1, 2, 2, 30.0),
    Sketcher.Constraint("DistanceY", 1, 2, 1, 1, 91.94536),
    Sketcher.Constraint("DistanceX", 0, 2, 0, 1, 40.424662),
])
pocket6 = body.newObject("PartDesign::Pocket", "Pocket005")
pocket6.Profile = sketch17
pocket6.Type = "ThroughAll"
pocket6.Midplane = True

# Sketch on YZ plane
sketch18 = body.newObject("Sketcher::SketchObject", "Sketch017")
sketch18.AttachmentSupport = (doc.getObject("YZ_Plane"), [""])
sketch18.MapMode = "FlatFace"
sketch18.addGeometry([
    Part.LineSegment(App.Vector(33, -62, 0), App.Vector(30, -62, 0)),
    Part.LineSegment(App.Vector(30, -62, 0), App.Vector(30, -17, 0)),
    Part.LineSegment(App.Vector(30, -17, 0), App.Vector(33, -17, 0)),
    Part.LineSegment(App.Vector(33, -17, 0), App.Vector(33, -62, 0)),
], False)
sketch18.addConstraint([
    Sketcher.Constraint("Coincident", 0, 2, 1, 1),
    Sketcher.Constraint("Coincident", 1, 2, 2, 1),
    Sketcher.Constraint("Coincident", 2, 2, 3, 1),
    Sketcher.Constraint("Coincident", 3, 2, 0, 1),
    Sketcher.Constraint("Horizontal", 0),
    Sketcher.Constraint("Vertical", 1),
    Sketcher.Constraint("Horizontal", 2),
    Sketcher.Constraint("Vertical", 3),
    Sketcher.Constraint("DistanceX", 0, 2, 0, 1, 3.0),
    Sketcher.Constraint("DistanceY", 1, 1, 1, 2, 45.0),
    Sketcher.Constraint("DistanceX", -1, 1, 0, 2, 30.0),
    Sketcher.Constraint("DistanceY", 0, 2, -1, 1, 62.0),
])
pad12 = body.newObject("PartDesign::Pad", "Pad011")
pad12.Profile = sketch18
pad12.Length = 2.5
pad12.Reversed = True

# Sketch on XZ plane
sketch19 = body.newObject("Sketcher::SketchObject", "Sketch018")
sketch19.AttachmentSupport = (doc.getObject("XZ_Plane"), [""])
sketch19.MapMode = "FlatFace"
sketch19.AttachmentOffset = App.Placement(App.Vector(0, 0, -30), App.Rotation())
sketch19.addGeometry([
    Part.LineSegment(App.Vector(-2.5, -17, 0), App.Vector(-2.5, -62, 0)),
    Part.LineSegment(App.Vector(-2.5, -62, 0), App.Vector(0, -62, 0)),
    Part.LineSegment(App.Vector(0, -62, 0), App.Vector(0, -17, 0)),
    Part.LineSegment(App.Vector(0, -17, 0), App.Vector(-2.5, -17, 0)),
], False)
sketch19.addConstraint([
    Sketcher.Constraint("Coincident", 0, 2, 1, 1),
    Sketcher.Constraint("Coincident", 1, 2, 2, 1),
    Sketcher.Constraint("Coincident", 2, 2, 3, 1),
    Sketcher.Constraint("Coincident", 3, 2, 0, 1),
    Sketcher.Constraint("Vertical", 0),
    Sketcher.Constraint("Horizontal", 1),
    Sketcher.Constraint("Vertical", 2),
    Sketcher.Constraint("Horizontal", 3),
    Sketcher.Constraint("PointOnObject", 1, 2, -2),
    Sketcher.Constraint("DistanceY", 0, 2, 0, 1, 45.0),
    Sketcher.Constraint("DistanceX", 1, 1, 1, 2, 2.5),
    Sketcher.Constraint("DistanceY", 0, 2, -1, 1, 62.0),
])
pad13 = body.newObject("PartDesign::Pad", "Pad012")
pad13.Profile = sketch19
pad13.Length = 8

# Sketch on YZ plane
sketch20 = body.newObject("Sketcher::SketchObject", "Sketch019")
sketch20.AttachmentSupport = (doc.getObject("YZ_Plane"), [""])
sketch20.MapMode = "FlatFace"
sketch20.addGeometry([
    Part.Circle(App.Vector(26, -27, 0), App.Vector(0, 0, 1), 1.8),
    Part.Circle(App.Vector(26, -52, 0), App.Vector(0, 0, 1), 1.8),
], False)
sketch20.addConstraint([
    Sketcher.Constraint("Equal", 0, 1),
    Sketcher.Constraint("Vertical", 0, 3, 1, 3),
    Sketcher.Constraint("Diameter", 0, 3.6),
    Sketcher.Constraint("DistanceX", -1, 1, 0, 3, 26.0),
    Sketcher.Constraint("DistanceY", 0, 3, -1, 1, 27.0),
    Sketcher.Constraint("DistanceY", 1, 3, -1, 1, 52.0),
])
pocket7 = body.newObject("PartDesign::Pocket", "Pocket006")
pocket7.Profile = sketch20
pocket7.Length = 10

doc.recompute()
